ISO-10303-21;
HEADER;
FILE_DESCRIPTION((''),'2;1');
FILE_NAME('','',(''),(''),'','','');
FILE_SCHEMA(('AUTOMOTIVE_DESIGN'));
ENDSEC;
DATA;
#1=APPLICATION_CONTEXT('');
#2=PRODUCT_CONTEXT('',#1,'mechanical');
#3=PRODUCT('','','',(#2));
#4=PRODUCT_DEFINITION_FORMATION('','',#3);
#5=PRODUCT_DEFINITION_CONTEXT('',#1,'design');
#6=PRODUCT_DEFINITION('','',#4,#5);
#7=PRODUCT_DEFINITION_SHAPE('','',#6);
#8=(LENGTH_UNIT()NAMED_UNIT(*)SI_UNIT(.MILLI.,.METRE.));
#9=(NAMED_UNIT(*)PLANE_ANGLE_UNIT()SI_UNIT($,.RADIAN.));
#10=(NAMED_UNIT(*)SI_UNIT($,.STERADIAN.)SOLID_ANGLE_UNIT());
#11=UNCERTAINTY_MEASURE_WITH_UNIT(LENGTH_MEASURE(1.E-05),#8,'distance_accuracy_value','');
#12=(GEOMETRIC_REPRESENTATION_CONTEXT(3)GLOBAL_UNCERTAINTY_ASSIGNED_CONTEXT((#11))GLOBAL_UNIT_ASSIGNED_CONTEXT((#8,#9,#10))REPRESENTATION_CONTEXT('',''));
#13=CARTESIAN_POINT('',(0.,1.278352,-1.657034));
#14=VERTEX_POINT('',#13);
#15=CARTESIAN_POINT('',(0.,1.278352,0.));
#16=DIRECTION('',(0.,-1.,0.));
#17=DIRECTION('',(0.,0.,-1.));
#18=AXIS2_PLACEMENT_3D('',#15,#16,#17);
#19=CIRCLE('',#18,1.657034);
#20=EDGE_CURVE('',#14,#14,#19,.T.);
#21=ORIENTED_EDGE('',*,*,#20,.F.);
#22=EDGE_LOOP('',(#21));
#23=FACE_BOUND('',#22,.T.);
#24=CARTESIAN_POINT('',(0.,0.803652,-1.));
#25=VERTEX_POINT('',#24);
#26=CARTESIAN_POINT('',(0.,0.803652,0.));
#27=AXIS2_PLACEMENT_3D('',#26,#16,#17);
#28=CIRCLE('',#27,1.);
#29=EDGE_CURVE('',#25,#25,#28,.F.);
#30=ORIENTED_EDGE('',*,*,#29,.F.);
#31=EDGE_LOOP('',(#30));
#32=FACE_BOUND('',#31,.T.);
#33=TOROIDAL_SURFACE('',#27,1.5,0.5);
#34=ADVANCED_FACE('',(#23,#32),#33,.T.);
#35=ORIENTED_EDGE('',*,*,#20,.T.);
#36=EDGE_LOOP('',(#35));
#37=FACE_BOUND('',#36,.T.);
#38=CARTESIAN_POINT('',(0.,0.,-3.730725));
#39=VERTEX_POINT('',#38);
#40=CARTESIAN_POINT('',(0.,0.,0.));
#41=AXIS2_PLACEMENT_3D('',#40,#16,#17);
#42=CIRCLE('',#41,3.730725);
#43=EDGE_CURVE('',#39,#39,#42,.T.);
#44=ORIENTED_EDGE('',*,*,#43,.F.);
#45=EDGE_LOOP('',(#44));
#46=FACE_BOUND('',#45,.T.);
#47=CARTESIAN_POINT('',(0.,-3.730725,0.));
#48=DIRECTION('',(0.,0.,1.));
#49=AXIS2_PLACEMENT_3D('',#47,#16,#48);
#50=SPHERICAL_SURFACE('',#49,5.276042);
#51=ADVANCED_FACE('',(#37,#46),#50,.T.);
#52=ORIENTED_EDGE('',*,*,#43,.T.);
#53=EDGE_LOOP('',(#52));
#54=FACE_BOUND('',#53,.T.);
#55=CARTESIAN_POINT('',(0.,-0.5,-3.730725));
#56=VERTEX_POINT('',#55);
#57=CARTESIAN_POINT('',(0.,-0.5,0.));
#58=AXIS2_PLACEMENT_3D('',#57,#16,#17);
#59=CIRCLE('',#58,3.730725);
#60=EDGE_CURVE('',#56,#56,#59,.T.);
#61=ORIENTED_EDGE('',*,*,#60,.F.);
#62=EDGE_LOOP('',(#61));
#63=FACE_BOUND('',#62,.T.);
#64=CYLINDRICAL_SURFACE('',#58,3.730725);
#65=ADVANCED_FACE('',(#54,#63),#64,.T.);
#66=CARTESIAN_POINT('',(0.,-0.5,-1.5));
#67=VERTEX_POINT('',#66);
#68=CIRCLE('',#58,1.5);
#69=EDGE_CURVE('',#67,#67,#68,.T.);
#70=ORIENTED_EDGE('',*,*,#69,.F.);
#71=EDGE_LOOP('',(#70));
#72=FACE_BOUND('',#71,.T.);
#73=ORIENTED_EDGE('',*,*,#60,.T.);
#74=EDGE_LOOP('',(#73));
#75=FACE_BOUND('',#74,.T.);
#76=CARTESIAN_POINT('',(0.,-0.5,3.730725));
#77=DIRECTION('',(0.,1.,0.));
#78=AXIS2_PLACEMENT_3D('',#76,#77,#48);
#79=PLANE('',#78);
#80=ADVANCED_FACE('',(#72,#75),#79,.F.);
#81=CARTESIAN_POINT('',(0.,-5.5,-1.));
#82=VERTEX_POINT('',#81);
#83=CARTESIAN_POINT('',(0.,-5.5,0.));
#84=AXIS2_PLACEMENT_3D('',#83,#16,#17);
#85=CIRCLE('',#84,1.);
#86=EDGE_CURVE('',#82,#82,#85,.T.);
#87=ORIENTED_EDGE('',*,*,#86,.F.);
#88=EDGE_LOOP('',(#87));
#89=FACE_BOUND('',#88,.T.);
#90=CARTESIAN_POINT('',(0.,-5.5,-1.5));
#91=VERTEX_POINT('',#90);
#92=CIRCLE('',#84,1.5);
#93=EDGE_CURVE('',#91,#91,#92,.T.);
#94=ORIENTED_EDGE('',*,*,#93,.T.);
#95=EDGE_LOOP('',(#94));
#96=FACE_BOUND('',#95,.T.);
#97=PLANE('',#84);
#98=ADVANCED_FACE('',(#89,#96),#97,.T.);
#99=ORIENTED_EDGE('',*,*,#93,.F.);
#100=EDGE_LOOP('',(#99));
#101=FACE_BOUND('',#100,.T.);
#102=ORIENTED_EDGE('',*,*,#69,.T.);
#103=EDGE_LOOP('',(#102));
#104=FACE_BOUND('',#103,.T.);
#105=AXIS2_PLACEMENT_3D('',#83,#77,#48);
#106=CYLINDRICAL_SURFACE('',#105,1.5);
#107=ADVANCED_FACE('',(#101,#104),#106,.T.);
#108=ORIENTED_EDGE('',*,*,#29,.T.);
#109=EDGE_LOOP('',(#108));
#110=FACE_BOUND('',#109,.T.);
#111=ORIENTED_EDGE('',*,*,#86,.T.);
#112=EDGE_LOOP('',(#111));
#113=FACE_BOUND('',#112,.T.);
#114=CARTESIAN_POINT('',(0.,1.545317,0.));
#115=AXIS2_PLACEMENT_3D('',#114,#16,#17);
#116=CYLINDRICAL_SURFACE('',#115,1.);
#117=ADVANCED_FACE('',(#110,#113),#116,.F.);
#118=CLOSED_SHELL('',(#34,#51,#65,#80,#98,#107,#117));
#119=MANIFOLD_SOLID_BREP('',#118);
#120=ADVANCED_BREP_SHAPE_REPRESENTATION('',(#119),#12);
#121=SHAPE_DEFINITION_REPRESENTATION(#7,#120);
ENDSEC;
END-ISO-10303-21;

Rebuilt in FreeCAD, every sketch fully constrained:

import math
import FreeCAD as App
import Part
import Sketcher

V = App.Vector


def edges_at(feature, points):
    """Names of the edges that pass closest to the given points."""
    edges = feature.Shape.Edges
    near = lambda p: min(range(len(edges)), key=lambda i: edges[i].distToShape(Part.Vertex(*p))[0])
    return sorted({f"Edge{near(p) + 1}" for p in points})

doc = App.newDocument("Part")
params = doc.addObject("Spreadsheet::Sheet", "Params")
for row, (alias, value) in enumerate([
    ("sketch1_width", "0.5 mm"),
    ("revolution_angle", "360 deg"),
    ("sketch2_diameter", "3 mm"),
    ("pad1_length", "5 mm"),
    ("sketch3_diameter", "2 mm"),
    ("fillet_radius", "0.5 mm"),
], start=1):
    params.set(f"A{row}", alias)
    params.set(f"B{row}", "=" + value)
    params.setAlias(f"B{row}", alias)

body = doc.addObject("PartDesign::Body", "Body")

# Sketch on YZ plane
sketch1 = doc.addObject("Sketcher::SketchObject", "Sketch")
body.addObject(sketch1)
sketch1.AttachmentSupport = (doc.YZ_Plane, [""])
sketch1.MapMode = "FlatFace"
sketch1.addGeometry(Part.LineSegment(V(-0.5, 0, 0), V(1.5, 0, 0)), False)
sketch1.addGeometry(Part.ArcOfCircle(Part.Circle(V(-3.7, 0, 0), V(0, 0, 1), 5.3), math.radians(0), math.radians(45)), False)
sketch1.addGeometry(Part.LineSegment(V(0, 3.7, 0), V(-0.5, 3.7, 0)), False)
sketch1.addGeometry(Part.LineSegment(V(-0.5, 3.7, 0), V(-0.5, 0, 0)), False)
sketch1.addConstraint(Sketcher.Constraint("Coincident", 0, 2, 1, 1))
sketch1.addConstraint(Sketcher.Constraint("Coincident", 1, 2, 2, 1))
sketch1.addConstraint(Sketcher.Constraint("Coincident", 2, 2, 3, 1))
sketch1.addConstraint(Sketcher.Constraint("Coincident", 3, 2, 0, 1))
sketch1.addConstraint(Sketcher.Constraint("Horizontal", 0))
sketch1.addConstraint(Sketcher.Constraint("Horizontal", 2))
sketch1.addConstraint(Sketcher.Constraint("Vertical", 3))
sketch1.addConstraint(Sketcher.Constraint("PointOnObject", 1, 3, -1))
sketch1.addConstraint(Sketcher.Constraint("PointOnObject", 0, 2, -1))
sketch1.addConstraint(Sketcher.Constraint("PointOnObject", 1, 2, -2))
sketch1.addConstraint(Sketcher.Constraint("DistanceX", 2, 2, 2, 1, 0.5))
sketch1.addConstraint(Sketcher.Constraint("Radius", 1, 5.276042))
sketch1.addConstraint(Sketcher.Constraint("DistanceX", 0, 1, 0, 2, 2.045317))
sketch1.setExpression("Constraints[10]", "Params.sketch1_width")
revolution = doc.addObject("PartDesign::Revolution", "Revolution")
body.addObject(revolution)
revolution.Profile = sketch1
revolution.ReferenceAxis = (sketch1, ["H_Axis"])
revolution.setExpression("Angle", "Params.revolution_angle")

# Sketch on XZ plane
sketch2 = doc.addObject("Sketcher::SketchObject", "Sketch001")
body.addObject(sketch2)
sketch2.AttachmentSupport = (doc.XZ_Plane, [""])
sketch2.MapMode = "FlatFace"
sketch2.AttachmentOffset = App.Placement(V(0, 0, 0.5), App.Rotation())
sketch2.addGeometry(Part.Circle(V(0, 0, 0), V(0, 0, 1), 1.5), False)
sketch2.addConstraint(Sketcher.Constraint("Coincident", 0, 3, -1, 1))
sketch2.addConstraint(Sketcher.Constraint("Diameter", 0, 3.0))
sketch2.setExpression("Constraints[1]", "Params.sketch2_diameter")
pad1 = doc.addObject("PartDesign::Pad", "Pad")
body.addObject(pad1)
pad1.Profile = sketch2
pad1.setExpression("Length", "Params.pad1_length")

# Sketch on XZ plane
sketch3 = doc.addObject("Sketcher::SketchObject", "Sketch002")
body.addObject(sketch3)
sketch3.AttachmentSupport = (doc.XZ_Plane, [""])
sketch3.MapMode = "FlatFace"
sketch3.AttachmentOffset = App.Placement(V(0, 0, 5.5), App.Rotation())
sketch3.addGeometry(Part.Circle(V(0, 0, 0), V(0, 0, 1), 1), False)
sketch3.addConstraint(Sketcher.Constraint("Coincident", 0, 3, -1, 1))
sketch3.addConstraint(Sketcher.Constraint("Diameter", 0, 2.0))
sketch3.setExpression("Constraints[1]", "Params.sketch3_diameter")
pocket1 = doc.addObject("PartDesign::Pocket", "Pocket")
body.addObject(pocket1)
pocket1.Profile = sketch3
pocket1.Type = "ThroughAll"
doc.recompute()

fillet = doc.addObject("PartDesign::Fillet", "Fillet")
body.addObject(fillet)
fillet.Base = (pocket1, edges_at(pocket1, [(-0.707, 1.45, -0.707)]))
fillet.setExpression("Radius", "Params.fillet_radius")

doc.recompute()
